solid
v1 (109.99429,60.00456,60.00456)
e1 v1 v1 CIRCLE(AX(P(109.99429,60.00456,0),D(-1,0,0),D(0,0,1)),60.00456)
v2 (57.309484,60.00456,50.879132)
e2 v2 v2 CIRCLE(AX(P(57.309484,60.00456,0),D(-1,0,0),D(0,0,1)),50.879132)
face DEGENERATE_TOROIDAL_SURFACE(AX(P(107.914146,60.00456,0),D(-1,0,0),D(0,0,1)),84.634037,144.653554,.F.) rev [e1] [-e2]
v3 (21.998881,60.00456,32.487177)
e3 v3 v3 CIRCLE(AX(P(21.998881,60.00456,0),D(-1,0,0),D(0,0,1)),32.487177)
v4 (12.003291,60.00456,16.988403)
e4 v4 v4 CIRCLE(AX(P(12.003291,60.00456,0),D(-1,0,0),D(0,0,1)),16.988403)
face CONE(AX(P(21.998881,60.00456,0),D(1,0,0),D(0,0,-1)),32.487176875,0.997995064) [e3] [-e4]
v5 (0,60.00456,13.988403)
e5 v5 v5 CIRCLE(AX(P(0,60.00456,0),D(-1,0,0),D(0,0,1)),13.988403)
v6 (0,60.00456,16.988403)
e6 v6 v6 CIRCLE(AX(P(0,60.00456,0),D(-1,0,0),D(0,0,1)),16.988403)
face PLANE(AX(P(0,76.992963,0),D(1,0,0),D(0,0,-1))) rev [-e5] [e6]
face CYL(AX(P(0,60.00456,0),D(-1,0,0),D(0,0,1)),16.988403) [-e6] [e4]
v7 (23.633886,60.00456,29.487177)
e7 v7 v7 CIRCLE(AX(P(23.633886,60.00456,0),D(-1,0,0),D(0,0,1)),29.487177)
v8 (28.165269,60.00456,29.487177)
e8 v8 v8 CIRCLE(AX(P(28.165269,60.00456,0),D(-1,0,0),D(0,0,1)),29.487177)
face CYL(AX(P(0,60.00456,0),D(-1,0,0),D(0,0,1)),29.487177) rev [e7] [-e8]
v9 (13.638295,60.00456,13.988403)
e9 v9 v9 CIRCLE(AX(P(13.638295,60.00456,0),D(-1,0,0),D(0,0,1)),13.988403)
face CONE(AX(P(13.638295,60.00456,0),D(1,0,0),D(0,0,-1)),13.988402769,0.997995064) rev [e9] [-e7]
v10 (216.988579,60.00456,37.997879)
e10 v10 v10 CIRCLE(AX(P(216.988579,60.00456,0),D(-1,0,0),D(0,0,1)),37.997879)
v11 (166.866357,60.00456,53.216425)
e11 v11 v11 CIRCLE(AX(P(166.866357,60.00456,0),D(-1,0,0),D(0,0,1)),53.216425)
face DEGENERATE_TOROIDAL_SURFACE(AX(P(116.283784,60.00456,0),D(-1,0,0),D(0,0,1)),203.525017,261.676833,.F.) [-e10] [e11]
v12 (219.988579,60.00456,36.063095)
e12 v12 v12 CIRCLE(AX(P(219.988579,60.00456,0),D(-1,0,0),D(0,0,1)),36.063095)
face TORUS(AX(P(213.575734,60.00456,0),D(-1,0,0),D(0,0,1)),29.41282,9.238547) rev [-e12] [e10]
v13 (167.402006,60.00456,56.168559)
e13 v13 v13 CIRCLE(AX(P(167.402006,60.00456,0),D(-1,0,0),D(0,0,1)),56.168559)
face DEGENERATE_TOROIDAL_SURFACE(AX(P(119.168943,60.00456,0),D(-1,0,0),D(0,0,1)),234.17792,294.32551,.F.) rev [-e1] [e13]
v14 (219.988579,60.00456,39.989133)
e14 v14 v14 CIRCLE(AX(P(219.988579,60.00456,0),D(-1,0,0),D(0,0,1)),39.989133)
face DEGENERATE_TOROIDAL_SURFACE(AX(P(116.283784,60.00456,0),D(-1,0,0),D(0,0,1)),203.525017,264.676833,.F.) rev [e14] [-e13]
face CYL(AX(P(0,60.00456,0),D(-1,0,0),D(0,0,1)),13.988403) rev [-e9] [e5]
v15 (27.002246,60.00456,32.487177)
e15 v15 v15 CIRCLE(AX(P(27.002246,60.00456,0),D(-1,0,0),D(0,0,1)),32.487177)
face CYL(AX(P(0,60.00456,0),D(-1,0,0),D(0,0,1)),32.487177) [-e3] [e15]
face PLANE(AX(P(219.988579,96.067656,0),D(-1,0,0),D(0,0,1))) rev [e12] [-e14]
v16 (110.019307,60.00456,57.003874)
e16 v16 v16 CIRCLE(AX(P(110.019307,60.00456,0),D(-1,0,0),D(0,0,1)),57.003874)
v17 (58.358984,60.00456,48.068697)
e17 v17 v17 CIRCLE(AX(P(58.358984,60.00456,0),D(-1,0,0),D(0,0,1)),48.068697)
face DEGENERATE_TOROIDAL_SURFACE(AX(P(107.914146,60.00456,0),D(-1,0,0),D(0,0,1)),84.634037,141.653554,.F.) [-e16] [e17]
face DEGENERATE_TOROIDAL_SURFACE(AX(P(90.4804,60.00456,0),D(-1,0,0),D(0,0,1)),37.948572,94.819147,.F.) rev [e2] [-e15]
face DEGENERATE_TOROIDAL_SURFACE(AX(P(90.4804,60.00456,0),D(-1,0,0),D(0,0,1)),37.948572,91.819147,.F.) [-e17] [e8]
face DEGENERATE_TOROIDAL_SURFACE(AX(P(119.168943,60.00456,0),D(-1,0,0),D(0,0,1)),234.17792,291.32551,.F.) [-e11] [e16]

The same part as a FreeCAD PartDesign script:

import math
import FreeCAD as App
import Part
import Sketcher
from FreeCAD import Vector

doc = App.newDocument("Part")
params = doc.addObject("Spreadsheet::Sheet", "Params")
for row, (alias, value) in enumerate([
    ("sketch1_height", "3 mm"),
    ("revolution_angle", "360 deg"),
], start=1):
    params.set(f"A{row}", alias)
    params.set(f"B{row}", "=" + value)
    params.setAlias(f"B{row}", alias)

body = doc.addObject("PartDesign::Body", "Body")

sketch1 = doc.addObject("Sketcher::SketchObject", "Sketch")
body.addObject(sketch1)
sketch1.AttachmentSupport = (doc.XY_Plane, [""])
sketch1.MapMode = "FlatFace"
sketch1.addGeometry([
    Part.LineSegment(Vector(0, 73.992963, 0), Vector(13.638295, 73.992963, 0)),
    Part.LineSegment(Vector(13.638295, 73.992963, 0), Vector(23.633886, 89.491737, 0)),
    Part.LineSegment(Vector(23.633886, 89.491737, 0), Vector(28.165269, 89.491737, 0)),
    Part.ArcOfCircle(Part.Circle(Vector(90.4804, 22.055989, 0), Vector(0, 0, 1), 91.819147), math.radians(110.477133), math.radians(132.739995)),
    Part.ArcOfCircle(Part.Circle(Vector(107.914146, -24.629476, 0), Vector(0, 0, 1), 141.653554), math.radians(89.148477), math.radians(110.477133)),
    Part.ArcOfCircle(Part.Circle(Vector(119.168943, -174.173359, 0), Vector(0, 0, 1), 291.32551), math.radians(80.576796), math.radians(91.79978)),
    Part.ArcOfCircle(Part.Circle(Vector(116.283784, -143.520457, 0), Vector(0, 0, 1), 261.676833), math.radians(67.365936), math.radians(78.85447)),
    Part.ArcOfCircle(Part.Circle(Vector(213.575734, 89.41738, 0), Vector(0, 0, 1), 9.238547), math.radians(46.041271), math.radians(68.32054)),
    Part.LineSegment(Vector(219.988579, 96.067656, 0), Vector(219.988579, 99.993694, 0)),
    Part.ArcOfCircle(Part.Circle(Vector(116.283784, -143.520457, 0), Vector(0, 0, 1), 264.676833), math.radians(66.932415), math.radians(78.864235)),
    Part.ArcOfCircle(Part.Circle(Vector(119.168943, -174.173359, 0), Vector(0, 0, 1), 294.32551), math.radians(80.56802), math.radians(91.786301)),
    Part.ArcOfCircle(Part.Circle(Vector(107.914146, -24.629476, 0), Vector(0, 0, 1), 144.653554), math.radians(89.176048), math.radians(110.477133)),
    Part.ArcOfCircle(Part.Circle(Vector(90.4804, 22.055989, 0), Vector(0, 0, 1), 94.819147), math.radians(110.477133), math.radians(132.02583)),
    Part.LineSegment(Vector(27.002246, 92.491737, 0), Vector(21.998881, 92.491737, 0)),
    Part.LineSegment(Vector(21.998881, 92.491737, 0), Vector(12.003291, 76.992963, 0)),
    Part.LineSegment(Vector(12.003291, 76.992963, 0), Vector(0, 76.992963, 0)),
    Part.LineSegment(Vector(0, 76.992963, 0), Vector(0, 73.992963, 0)),
], False)
sketch1.addGeometry(Part.LineSegment(Vector(0, 60.00456, 0), Vector(219.988579, 60.00456, 0)), True)
sketch1.addConstraint([
    Sketcher.Constraint("Coincident", 0, 2, 1, 1),
    Sketcher.Constraint("Coincident", 1, 2, 2, 1),
    Sketcher.Constraint("Coincident", 2, 2, 3, 2),
    Sketcher.Constraint("Coincident", 3, 1, 4, 2),
    Sketcher.Constraint("Coincident", 4, 1, 5, 2),
    Sketcher.Constraint("Coincident", 5, 1, 6, 2),
    Sketcher.Constraint("Coincident", 6, 1, 7, 2),
    Sketcher.Constraint("Coincident", 7, 1, 8, 1),
    Sketcher.Constraint("Coincident", 8, 2, 9, 1),
    Sketcher.Constraint("Coincident", 9, 2, 10, 1),
    Sketcher.Constraint("Coincident", 10, 2, 11, 1),
    Sketcher.Constraint("Coincident", 11, 2, 12, 1),
    Sketcher.Constraint("Coincident", 12, 2, 13, 1),
    Sketcher.Constraint("Coincident", 13, 2, 14, 1),
    Sketcher.Constraint("Coincident", 14, 2, 15, 1),
    Sketcher.Constraint("Coincident", 15, 2, 16, 1),
    Sketcher.Constraint("Coincident", 16, 2, 0, 1),
    Sketcher.Constraint("Horizontal", 0),
    Sketcher.Constraint("Horizontal", 2),
    Sketcher.Constraint("Vertical", 8),
    Sketcher.Constraint("Horizontal", 13),
    Sketcher.Constraint("Horizontal", 15),
    Sketcher.Constraint("Vertical", 16),
    Sketcher.Constraint("Horizontal", 17),
    Sketcher.Constraint("Coincident", 9, 3, 6, 3),
    Sketcher.Constraint("Coincident", 10, 3, 5, 3),
    Sketcher.Constraint("Coincident", 11, 3, 4, 3),
    Sketcher.Constraint("Coincident", 12, 3, 3, 3),
    Sketcher.Constraint("PointOnObject", 15, 2, -2),
    Sketcher.Constraint("PointOnObject", 17, 1, -2),
    Sketcher.Constraint("DistanceY", 16, 2, 16, 1, 3.0),
    Sketcher.Constraint("DistanceX", 6, 1, 7, 1, 3.0),
    Sketcher.Constraint("DistanceY", 2, 2, 12, 2, 3.0),
    Sketcher.Constraint("DistanceX", 6, 1, 17, 2, 3.0),
    Sketcher.Constraint("Radius", 5, 291.32551),
    Sketcher.Constraint("Radius", 10, 294.32551),
    Sketcher.Constraint("Radius", 3, 91.819147),
    Sketcher.Constraint("Radius", 4, 141.653554),
    Sketcher.Constraint("Radius", 6, 261.676833),
    Sketcher.Constraint("Radius", 7, 9.238547),
    Sketcher.Constraint("Radius", 9, 264.676833),
    Sketcher.Constraint("Radius", 11, 144.653554),
    Sketcher.Constraint("DistanceY", 9, 2, 10, 2, 3.836002),
    Sketcher.Constraint("DistanceX", 15, 2, 15, 1, 12.003291),
    Sketcher.Constraint("DistanceX", 17, 1, 17, 2, 219.988579),
    Sketcher.Constraint("DistanceX", -1, 1, 3, 3, 90.4804),
    Sketcher.Constraint("DistanceX", 1, 2, 3, 1, 34.725099),
    Sketcher.Constraint("DistanceX", 11, 2, 3, 1, 1.049501),
    Sketcher.Constraint("DistanceX", 0, 1, 0, 2, 13.638295),
    Sketcher.Constraint("DistanceX", 2, 1, 2, 2, 4.531383),
    Sketcher.Constraint("DistanceX", 13, 2, 13, 1, 5.003365),
    Sketcher.Constraint("DistanceY", 8, 1, 8, 2, 3.926038),
    Sketcher.Constraint("DistanceY", -1, 1, 3, 3, 22.055989),
    Sketcher.Constraint("DistanceY", 5, 3, -1, 1, 174.173359),
    Sketcher.Constraint("DistanceY", -1, 1, 7, 3, 89.41738),
    Sketcher.Constraint("DistanceX", -1, 1, 2, 2, 28.165269),
    Sketcher.Constraint("DistanceY", -1, 1, 9, 2, 116.173119),
    Sketcher.Constraint("DistanceY", -1, 1, 17, 1, 60.00456),
    Sketcher.Constraint("DistanceX", 6, 3, 5, 3, 2.885159),
    Sketcher.Constraint("DistanceY", 4, 3, 0, 2, 98.622439),
])
sketch1.setExpression("Constraints[30]", "Params.sketch1_height")
revolution = doc.addObject("PartDesign::Revolution", "Revolution")
body.addObject(revolution)
revolution.Profile = sketch1
revolution.ReferenceAxis = (sketch1, ["Axis0"])
revolution.setExpression("Angle", "Params.revolution_angle")

doc.recompute()
